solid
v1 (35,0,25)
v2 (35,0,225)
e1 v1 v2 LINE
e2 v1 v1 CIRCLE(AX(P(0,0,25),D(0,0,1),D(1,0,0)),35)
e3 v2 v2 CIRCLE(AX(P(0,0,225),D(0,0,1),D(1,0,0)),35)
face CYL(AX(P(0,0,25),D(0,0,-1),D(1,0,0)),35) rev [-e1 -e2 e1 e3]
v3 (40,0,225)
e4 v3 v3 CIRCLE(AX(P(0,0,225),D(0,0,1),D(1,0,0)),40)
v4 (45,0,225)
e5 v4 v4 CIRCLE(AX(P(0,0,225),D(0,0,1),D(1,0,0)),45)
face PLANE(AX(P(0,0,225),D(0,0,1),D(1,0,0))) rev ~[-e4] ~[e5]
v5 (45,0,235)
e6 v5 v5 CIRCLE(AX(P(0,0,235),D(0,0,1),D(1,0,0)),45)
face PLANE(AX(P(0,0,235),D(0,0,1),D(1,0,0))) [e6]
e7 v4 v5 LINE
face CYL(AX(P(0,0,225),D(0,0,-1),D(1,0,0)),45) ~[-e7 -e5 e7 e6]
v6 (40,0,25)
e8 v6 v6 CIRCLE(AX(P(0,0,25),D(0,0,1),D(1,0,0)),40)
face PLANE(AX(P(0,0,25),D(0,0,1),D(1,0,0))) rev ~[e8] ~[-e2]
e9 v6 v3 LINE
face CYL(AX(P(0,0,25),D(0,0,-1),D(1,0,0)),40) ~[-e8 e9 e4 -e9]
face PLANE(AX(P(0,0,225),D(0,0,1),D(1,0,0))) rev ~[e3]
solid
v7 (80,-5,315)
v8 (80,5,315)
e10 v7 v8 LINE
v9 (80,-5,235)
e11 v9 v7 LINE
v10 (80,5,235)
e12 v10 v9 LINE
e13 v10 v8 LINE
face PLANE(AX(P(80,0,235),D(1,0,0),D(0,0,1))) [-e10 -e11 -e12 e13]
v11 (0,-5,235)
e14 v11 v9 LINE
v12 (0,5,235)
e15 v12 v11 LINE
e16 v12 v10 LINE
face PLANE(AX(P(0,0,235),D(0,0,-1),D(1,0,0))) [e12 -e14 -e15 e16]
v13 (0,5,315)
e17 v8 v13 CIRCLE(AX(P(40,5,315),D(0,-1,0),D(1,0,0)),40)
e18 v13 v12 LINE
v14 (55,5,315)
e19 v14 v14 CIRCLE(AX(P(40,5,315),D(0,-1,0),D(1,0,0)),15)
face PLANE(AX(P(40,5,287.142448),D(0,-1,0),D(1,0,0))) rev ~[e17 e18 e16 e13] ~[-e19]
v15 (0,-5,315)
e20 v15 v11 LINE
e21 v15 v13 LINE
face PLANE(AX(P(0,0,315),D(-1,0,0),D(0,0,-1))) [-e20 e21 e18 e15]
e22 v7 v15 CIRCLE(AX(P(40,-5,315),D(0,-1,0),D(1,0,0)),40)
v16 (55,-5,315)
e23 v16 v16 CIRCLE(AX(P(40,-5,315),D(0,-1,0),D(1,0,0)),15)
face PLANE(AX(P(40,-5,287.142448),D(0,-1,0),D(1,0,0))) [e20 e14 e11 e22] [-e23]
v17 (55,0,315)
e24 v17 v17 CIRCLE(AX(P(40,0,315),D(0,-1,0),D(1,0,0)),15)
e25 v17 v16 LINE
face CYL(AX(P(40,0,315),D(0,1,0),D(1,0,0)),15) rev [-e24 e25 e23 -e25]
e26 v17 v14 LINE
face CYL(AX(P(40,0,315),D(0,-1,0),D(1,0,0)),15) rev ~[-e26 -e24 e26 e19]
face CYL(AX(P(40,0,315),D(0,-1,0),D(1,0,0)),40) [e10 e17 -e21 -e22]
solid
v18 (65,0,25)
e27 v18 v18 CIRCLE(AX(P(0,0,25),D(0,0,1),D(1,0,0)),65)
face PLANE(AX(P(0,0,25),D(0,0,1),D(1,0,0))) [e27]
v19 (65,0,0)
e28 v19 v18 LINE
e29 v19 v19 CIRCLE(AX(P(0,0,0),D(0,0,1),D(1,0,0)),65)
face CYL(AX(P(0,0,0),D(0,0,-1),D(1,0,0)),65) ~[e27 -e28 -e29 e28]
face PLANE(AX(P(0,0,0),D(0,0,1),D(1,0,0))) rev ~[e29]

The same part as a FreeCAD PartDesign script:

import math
import FreeCAD as App
import Part
import Sketcher
from FreeCAD import Vector
Q = App.Units.Quantity

doc = App.newDocument("Part")
params = doc.addObject("Spreadsheet::Sheet", "Params")
for row, (alias, value) in enumerate([
    ("sketch1_diameter", "130 mm"),
    ("pad1_length", "25 mm"),
    ("sketch2_diameter", "80 mm"),
    ("sketch2_diameter2", "70 mm"),
    ("pad2_length", "200 mm"),
    ("sketch3_diameter", "90 mm"),
    ("pad3_length", "10 mm"),
    ("sketch4_diameter", "30 mm"),
    ("sketch4_radius", "40 mm"),
    ("pad4_length", "5 mm"),
    ("pad4_length2", "5 mm"),
], start=1):
    params.set(f"A{row}", alias)
    params.set(f"B{row}", "=" + value)
    params.setAlias(f"B{row}", alias)

body = doc.addObject("PartDesign::Body", "Body")

# Sketch on XY plane
sketch1 = body.newObject("Sketcher::SketchObject", "Sketch")
sketch1.AttachmentSupport = (doc.getObject("XY_Plane"), [""])
sketch1.MapMode = "FlatFace"
sketch1.addGeometry(Part.Circle(Vector(0, 0, 0), Vector(0, 0, 1), 65), False)
sketch1.addConstraint(Sketcher.Constraint("Coincident", 0, 3, -1, 1))
sketch1.addConstraint(Sketcher.Constraint("Diameter", 0, Q("130 mm")))
sketch1.setExpression("Constraints[1]", "Params.sketch1_diameter")
pad1 = body.newObject("PartDesign::Pad", "Pad")
pad1.Profile = sketch1
pad1.setExpression("Length", "Params.pad1_length")
body2 = doc.addObject("PartDesign::Body", "Body001")

# Sketch on XY plane
sketch2 = body2.newObject("Sketcher::SketchObject", "Sketch001")
sketch2.AttachmentSupport = (doc.getObject("XY_Plane001"), [""])
sketch2.MapMode = "FlatFace"
sketch2.AttachmentOffset = App.Placement(Vector(0, 0, 25), App.Rotation())
sketch2.addGeometry(Part.Circle(Vector(0, 0, 0), Vector(0, 0, 1), 40), False)
sketch2.addGeometry(Part.Circle(Vector(0, 0, 0), Vector(0, 0, 1), 35), False)
sketch2.addConstraint(Sketcher.Constraint("Coincident", 0, 3, -1, 1))
sketch2.addConstraint(Sketcher.Constraint("Coincident", 1, 3, -1, 1))
sketch2.addConstraint(Sketcher.Constraint("Diameter", 0, Q("80 mm")))
sketch2.addConstraint(Sketcher.Constraint("Diameter", 1, Q("70 mm")))
sketch2.setExpression("Constraints[2]", "Params.sketch2_diameter")
sketch2.setExpression("Constraints[3]", "Params.sketch2_diameter2")
pad2 = body2.newObject("PartDesign::Pad", "Pad001")
pad2.Profile = sketch2
pad2.setExpression("Length", "Params.pad2_length")

# Sketch on XY plane
sketch3 = body2.newObject("Sketcher::SketchObject", "Sketch002")
sketch3.AttachmentSupport = (doc.getObject("XY_Plane001"), [""])
sketch3.MapMode = "FlatFace"
sketch3.AttachmentOffset = App.Placement(Vector(0, 0, 225), App.Rotation())
sketch3.addGeometry(Part.Circle(Vector(0, 0, 0), Vector(0, 0, 1), 45), False)
sketch3.addConstraint(Sketcher.Constraint("Coincident", 0, 3, -1, 1))
sketch3.addConstraint(Sketcher.Constraint("Diameter", 0, Q("90 mm")))
sketch3.setExpression("Constraints[1]", "Params.sketch3_diameter")
pad3 = body2.newObject("PartDesign::Pad", "Pad002")
pad3.Profile = sketch3
pad3.setExpression("Length", "Params.pad3_length")
body3 = doc.addObject("PartDesign::Body", "Body002")

# Sketch on XZ plane
sketch4 = body3.newObject("Sketcher::SketchObject", "Sketch003")
sketch4.AttachmentSupport = (doc.getObject("XZ_Plane002"), [""])
sketch4.MapMode = "FlatFace"
sketch4.addGeometry(Part.LineSegment(Vector(0, 315, 0), Vector(0, 235, 0)), False)
sketch4.addGeometry(Part.LineSegment(Vector(0, 235, 0), Vector(80, 235, 0)), False)
sketch4.addGeometry(Part.LineSegment(Vector(80, 235, 0), Vector(80, 315, 0)), False)
sketch4.addGeometry(Part.ArcOfCircle(Part.Circle(Vector(40, 315, 0), Vector(0, 0, 1), 40), math.radians(0), math.radians(180)), False)
sketch4.addGeometry(Part.Circle(Vector(40, 315, 0), Vector(0, 0, 1), 15), False)
sketch4.addConstraint(Sketcher.Constraint("Coincident", 0, 2, 1, 1))
sketch4.addConstraint(Sketcher.Constraint("Coincident", 1, 2, 2, 1))
sketch4.addConstraint(Sketcher.Constraint("Tangent", 2, 2, 3, 1))
sketch4.addConstraint(Sketcher.Constraint("Tangent", 3, 2, 0, 1))
sketch4.addConstraint(Sketcher.Constraint("Vertical", 0))
sketch4.addConstraint(Sketcher.Constraint("Horizontal", 1))
sketch4.addConstraint(Sketcher.Constraint("Vertical", 2))
sketch4.addConstraint(Sketcher.Constraint("Coincident", 4, 3, 3, 3))
sketch4.addConstraint(Sketcher.Constraint("PointOnObject", 0, 2, -2))
sketch4.addConstraint(Sketcher.Constraint("Equal", 1, 0))
sketch4.addConstraint(Sketcher.Constraint("Diameter", 4, Q("30 mm")))
sketch4.addConstraint(Sketcher.Constraint("Radius", 3, Q("40 mm")))
sketch4.addConstraint(Sketcher.Constraint("DistanceY", -1, 1, 3, 3, Q("315 mm")))
sketch4.setExpression("Constraints[10]", "Params.sketch4_diameter")
sketch4.setExpression("Constraints[11]", "Params.sketch4_radius")
pad4 = body3.newObject("PartDesign::Pad", "Pad003")
pad4.Profile = sketch4
pad4.Type = "TwoLengths"
pad4.setExpression("Length", "Params.pad4_length")
pad4.setExpression("Length2", "Params.pad4_length2")

doc.recompute()
